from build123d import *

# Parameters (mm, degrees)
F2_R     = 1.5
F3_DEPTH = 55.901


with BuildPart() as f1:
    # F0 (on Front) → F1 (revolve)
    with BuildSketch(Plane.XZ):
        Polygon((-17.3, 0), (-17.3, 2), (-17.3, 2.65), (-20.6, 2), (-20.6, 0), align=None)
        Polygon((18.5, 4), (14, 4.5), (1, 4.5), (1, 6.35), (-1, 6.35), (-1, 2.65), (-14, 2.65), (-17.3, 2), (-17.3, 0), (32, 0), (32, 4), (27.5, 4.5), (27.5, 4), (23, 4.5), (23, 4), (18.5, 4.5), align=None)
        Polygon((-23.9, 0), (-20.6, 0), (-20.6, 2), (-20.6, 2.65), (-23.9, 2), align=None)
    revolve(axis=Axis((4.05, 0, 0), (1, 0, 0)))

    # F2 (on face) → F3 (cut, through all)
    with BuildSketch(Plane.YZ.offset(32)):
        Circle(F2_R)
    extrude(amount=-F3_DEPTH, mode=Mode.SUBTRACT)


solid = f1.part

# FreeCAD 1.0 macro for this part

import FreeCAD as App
import Part
import Sketcher
from FreeCAD import Vector
Q = App.Units.Quantity


def add_polygon(sketch, points):
    """Adds a closed chain of lines whose ends are joined by coincident constraints."""
    first, n = sketch.GeometryCount, len(points)
    for a, b in zip(points, points[1:] + points[:1]):
        sketch.addGeometry(Part.LineSegment(App.Vector(*a, 0), App.Vector(*b, 0)), False)
    for i in range(n):
        sketch.addConstraint(Sketcher.Constraint("Coincident", first + i, 2, first + (i + 1) % n, 1))

doc = App.newDocument("Part")
body = doc.addObject("PartDesign::Body", "Body")

sketch1 = doc.addObject("Sketcher::SketchObject", "Sketch")
body.addObject(sketch1)
sketch1.AttachmentSupport = (doc.XZ_Plane, [""])
sketch1.MapMode = "FlatFace"
add_polygon(sketch1, [(-23.9, 0), (32, 0), (32, 4), (27.5, 4.5), (27.5, 4), (23, 4.5), (23, 4), (18.5, 4.5), (18.5, 4), (14, 4.5), (1, 4.5), (1, 6.3), (-1, 6.3), (-1, 2.6), (-14, 2.6), (-17.3, 2), (-17.3, 2.6), (-20.6, 2), (-20.6, 2.6), (-23.9, 2)])
sketch1.addConstraint([
    Sketcher.Constraint("Horizontal", 0),
    Sketcher.Constraint("Vertical", 1),
    Sketcher.Constraint("Vertical", 3),
    Sketcher.Constraint("Vertical", 5),
    Sketcher.Constraint("Vertical", 7),
    Sketcher.Constraint("Horizontal", 9),
    Sketcher.Constraint("Vertical", 10),
    Sketcher.Constraint("Horizontal", 11),
    Sketcher.Constraint("Vertical", 12),
    Sketcher.Constraint("Horizontal", 13),
    Sketcher.Constraint("Vertical", 15),
    Sketcher.Constraint("Vertical", 17),
    Sketcher.Constraint("Vertical", 19),
    Sketcher.Constraint("PointOnObject", 0, 2, -1),
    Sketcher.Constraint("Parallel", 2, 4),
    Sketcher.Constraint("Parallel", 4, 6),
    Sketcher.Constraint("Parallel", 6, 8),
    Sketcher.Constraint("Parallel", 14, 16),
    Sketcher.Constraint("Parallel", 16, 18),
    Sketcher.Constraint("Horizontal", 1, 2, 3, 2),
    Sketcher.Constraint("Horizontal", 2, 2, 4, 2),
    Sketcher.Constraint("Horizontal", 3, 2, 5, 2),
    Sketcher.Constraint("Horizontal", 4, 2, 6, 2),
    Sketcher.Constraint("Horizontal", 5, 2, 7, 2),
    Sketcher.Constraint("Horizontal", 6, 2, 8, 2),
    Sketcher.Constraint("Horizontal", 13, 2, 15, 2),
    Sketcher.Constraint("Horizontal", 14, 2, 16, 2),
    Sketcher.Constraint("Horizontal", 15, 2, 17, 2),
    Sketcher.Constraint("Horizontal", 16, 2, 18, 2),
    Sketcher.Constraint("Equal", 9, 13),
    Sketcher.Constraint("Equal", 11, 19),
    Sketcher.Constraint("DistanceX", 9, 2, 9, 1, Q("13 mm")),
    Sketcher.Constraint("DistanceX", 11, 2, 11, 1, Q("2 mm")),
    Sketcher.Constraint("DistanceY", 1, 1, 1, 2, Q("4 mm")),
    Sketcher.Constraint("DistanceX", 0, 1, 0, 2, Q("55.9 mm")),
    Sketcher.Constraint("DistanceY", 3, 2, 3, 1, Q("0.5 mm")),
    Sketcher.Constraint("DistanceY", 12, 2, 12, 1, Q("3.7 mm")),
    Sketcher.Constraint("DistanceX", -1, 1, 0, 2, Q("32 mm")),
    Sketcher.Constraint("DistanceX", -1, 1, 4, 2, Q("23 mm")),
    Sketcher.Constraint("DistanceY", 10, 1, 10, 2, Q("1.85 mm")),
])
revolution = doc.addObject("PartDesign::Revolution", "Revolution")
body.addObject(revolution)
revolution.Profile = sketch1
revolution.ReferenceAxis = (sketch1, ["H_Axis"])
revolution.Angle = 360

sketch2 = doc.addObject("Sketcher::SketchObject", "Sketch001")
body.addObject(sketch2)
sketch2.AttachmentSupport = (doc.YZ_Plane, [""])
sketch2.MapMode = "FlatFace"
sketch2.AttachmentOffset = App.Placement(Vector(0, 0, 32), App.Rotation())
sketch2.addGeometry(Part.Circle(Vector(0, 0, 0), Vector(0, 0, 1), 1.5), False)
sketch2.addConstraint([
    Sketcher.Constraint("Coincident", 0, 3, -1, 1),
    Sketcher.Constraint("Diameter", 0, Q("3 mm")),
])
pocket1 = doc.addObject("PartDesign::Pocket", "Pocket")
body.addObject(pocket1)
pocket1.Profile = sketch2
pocket1.Type = "ThroughAll"

doc.recompute()
